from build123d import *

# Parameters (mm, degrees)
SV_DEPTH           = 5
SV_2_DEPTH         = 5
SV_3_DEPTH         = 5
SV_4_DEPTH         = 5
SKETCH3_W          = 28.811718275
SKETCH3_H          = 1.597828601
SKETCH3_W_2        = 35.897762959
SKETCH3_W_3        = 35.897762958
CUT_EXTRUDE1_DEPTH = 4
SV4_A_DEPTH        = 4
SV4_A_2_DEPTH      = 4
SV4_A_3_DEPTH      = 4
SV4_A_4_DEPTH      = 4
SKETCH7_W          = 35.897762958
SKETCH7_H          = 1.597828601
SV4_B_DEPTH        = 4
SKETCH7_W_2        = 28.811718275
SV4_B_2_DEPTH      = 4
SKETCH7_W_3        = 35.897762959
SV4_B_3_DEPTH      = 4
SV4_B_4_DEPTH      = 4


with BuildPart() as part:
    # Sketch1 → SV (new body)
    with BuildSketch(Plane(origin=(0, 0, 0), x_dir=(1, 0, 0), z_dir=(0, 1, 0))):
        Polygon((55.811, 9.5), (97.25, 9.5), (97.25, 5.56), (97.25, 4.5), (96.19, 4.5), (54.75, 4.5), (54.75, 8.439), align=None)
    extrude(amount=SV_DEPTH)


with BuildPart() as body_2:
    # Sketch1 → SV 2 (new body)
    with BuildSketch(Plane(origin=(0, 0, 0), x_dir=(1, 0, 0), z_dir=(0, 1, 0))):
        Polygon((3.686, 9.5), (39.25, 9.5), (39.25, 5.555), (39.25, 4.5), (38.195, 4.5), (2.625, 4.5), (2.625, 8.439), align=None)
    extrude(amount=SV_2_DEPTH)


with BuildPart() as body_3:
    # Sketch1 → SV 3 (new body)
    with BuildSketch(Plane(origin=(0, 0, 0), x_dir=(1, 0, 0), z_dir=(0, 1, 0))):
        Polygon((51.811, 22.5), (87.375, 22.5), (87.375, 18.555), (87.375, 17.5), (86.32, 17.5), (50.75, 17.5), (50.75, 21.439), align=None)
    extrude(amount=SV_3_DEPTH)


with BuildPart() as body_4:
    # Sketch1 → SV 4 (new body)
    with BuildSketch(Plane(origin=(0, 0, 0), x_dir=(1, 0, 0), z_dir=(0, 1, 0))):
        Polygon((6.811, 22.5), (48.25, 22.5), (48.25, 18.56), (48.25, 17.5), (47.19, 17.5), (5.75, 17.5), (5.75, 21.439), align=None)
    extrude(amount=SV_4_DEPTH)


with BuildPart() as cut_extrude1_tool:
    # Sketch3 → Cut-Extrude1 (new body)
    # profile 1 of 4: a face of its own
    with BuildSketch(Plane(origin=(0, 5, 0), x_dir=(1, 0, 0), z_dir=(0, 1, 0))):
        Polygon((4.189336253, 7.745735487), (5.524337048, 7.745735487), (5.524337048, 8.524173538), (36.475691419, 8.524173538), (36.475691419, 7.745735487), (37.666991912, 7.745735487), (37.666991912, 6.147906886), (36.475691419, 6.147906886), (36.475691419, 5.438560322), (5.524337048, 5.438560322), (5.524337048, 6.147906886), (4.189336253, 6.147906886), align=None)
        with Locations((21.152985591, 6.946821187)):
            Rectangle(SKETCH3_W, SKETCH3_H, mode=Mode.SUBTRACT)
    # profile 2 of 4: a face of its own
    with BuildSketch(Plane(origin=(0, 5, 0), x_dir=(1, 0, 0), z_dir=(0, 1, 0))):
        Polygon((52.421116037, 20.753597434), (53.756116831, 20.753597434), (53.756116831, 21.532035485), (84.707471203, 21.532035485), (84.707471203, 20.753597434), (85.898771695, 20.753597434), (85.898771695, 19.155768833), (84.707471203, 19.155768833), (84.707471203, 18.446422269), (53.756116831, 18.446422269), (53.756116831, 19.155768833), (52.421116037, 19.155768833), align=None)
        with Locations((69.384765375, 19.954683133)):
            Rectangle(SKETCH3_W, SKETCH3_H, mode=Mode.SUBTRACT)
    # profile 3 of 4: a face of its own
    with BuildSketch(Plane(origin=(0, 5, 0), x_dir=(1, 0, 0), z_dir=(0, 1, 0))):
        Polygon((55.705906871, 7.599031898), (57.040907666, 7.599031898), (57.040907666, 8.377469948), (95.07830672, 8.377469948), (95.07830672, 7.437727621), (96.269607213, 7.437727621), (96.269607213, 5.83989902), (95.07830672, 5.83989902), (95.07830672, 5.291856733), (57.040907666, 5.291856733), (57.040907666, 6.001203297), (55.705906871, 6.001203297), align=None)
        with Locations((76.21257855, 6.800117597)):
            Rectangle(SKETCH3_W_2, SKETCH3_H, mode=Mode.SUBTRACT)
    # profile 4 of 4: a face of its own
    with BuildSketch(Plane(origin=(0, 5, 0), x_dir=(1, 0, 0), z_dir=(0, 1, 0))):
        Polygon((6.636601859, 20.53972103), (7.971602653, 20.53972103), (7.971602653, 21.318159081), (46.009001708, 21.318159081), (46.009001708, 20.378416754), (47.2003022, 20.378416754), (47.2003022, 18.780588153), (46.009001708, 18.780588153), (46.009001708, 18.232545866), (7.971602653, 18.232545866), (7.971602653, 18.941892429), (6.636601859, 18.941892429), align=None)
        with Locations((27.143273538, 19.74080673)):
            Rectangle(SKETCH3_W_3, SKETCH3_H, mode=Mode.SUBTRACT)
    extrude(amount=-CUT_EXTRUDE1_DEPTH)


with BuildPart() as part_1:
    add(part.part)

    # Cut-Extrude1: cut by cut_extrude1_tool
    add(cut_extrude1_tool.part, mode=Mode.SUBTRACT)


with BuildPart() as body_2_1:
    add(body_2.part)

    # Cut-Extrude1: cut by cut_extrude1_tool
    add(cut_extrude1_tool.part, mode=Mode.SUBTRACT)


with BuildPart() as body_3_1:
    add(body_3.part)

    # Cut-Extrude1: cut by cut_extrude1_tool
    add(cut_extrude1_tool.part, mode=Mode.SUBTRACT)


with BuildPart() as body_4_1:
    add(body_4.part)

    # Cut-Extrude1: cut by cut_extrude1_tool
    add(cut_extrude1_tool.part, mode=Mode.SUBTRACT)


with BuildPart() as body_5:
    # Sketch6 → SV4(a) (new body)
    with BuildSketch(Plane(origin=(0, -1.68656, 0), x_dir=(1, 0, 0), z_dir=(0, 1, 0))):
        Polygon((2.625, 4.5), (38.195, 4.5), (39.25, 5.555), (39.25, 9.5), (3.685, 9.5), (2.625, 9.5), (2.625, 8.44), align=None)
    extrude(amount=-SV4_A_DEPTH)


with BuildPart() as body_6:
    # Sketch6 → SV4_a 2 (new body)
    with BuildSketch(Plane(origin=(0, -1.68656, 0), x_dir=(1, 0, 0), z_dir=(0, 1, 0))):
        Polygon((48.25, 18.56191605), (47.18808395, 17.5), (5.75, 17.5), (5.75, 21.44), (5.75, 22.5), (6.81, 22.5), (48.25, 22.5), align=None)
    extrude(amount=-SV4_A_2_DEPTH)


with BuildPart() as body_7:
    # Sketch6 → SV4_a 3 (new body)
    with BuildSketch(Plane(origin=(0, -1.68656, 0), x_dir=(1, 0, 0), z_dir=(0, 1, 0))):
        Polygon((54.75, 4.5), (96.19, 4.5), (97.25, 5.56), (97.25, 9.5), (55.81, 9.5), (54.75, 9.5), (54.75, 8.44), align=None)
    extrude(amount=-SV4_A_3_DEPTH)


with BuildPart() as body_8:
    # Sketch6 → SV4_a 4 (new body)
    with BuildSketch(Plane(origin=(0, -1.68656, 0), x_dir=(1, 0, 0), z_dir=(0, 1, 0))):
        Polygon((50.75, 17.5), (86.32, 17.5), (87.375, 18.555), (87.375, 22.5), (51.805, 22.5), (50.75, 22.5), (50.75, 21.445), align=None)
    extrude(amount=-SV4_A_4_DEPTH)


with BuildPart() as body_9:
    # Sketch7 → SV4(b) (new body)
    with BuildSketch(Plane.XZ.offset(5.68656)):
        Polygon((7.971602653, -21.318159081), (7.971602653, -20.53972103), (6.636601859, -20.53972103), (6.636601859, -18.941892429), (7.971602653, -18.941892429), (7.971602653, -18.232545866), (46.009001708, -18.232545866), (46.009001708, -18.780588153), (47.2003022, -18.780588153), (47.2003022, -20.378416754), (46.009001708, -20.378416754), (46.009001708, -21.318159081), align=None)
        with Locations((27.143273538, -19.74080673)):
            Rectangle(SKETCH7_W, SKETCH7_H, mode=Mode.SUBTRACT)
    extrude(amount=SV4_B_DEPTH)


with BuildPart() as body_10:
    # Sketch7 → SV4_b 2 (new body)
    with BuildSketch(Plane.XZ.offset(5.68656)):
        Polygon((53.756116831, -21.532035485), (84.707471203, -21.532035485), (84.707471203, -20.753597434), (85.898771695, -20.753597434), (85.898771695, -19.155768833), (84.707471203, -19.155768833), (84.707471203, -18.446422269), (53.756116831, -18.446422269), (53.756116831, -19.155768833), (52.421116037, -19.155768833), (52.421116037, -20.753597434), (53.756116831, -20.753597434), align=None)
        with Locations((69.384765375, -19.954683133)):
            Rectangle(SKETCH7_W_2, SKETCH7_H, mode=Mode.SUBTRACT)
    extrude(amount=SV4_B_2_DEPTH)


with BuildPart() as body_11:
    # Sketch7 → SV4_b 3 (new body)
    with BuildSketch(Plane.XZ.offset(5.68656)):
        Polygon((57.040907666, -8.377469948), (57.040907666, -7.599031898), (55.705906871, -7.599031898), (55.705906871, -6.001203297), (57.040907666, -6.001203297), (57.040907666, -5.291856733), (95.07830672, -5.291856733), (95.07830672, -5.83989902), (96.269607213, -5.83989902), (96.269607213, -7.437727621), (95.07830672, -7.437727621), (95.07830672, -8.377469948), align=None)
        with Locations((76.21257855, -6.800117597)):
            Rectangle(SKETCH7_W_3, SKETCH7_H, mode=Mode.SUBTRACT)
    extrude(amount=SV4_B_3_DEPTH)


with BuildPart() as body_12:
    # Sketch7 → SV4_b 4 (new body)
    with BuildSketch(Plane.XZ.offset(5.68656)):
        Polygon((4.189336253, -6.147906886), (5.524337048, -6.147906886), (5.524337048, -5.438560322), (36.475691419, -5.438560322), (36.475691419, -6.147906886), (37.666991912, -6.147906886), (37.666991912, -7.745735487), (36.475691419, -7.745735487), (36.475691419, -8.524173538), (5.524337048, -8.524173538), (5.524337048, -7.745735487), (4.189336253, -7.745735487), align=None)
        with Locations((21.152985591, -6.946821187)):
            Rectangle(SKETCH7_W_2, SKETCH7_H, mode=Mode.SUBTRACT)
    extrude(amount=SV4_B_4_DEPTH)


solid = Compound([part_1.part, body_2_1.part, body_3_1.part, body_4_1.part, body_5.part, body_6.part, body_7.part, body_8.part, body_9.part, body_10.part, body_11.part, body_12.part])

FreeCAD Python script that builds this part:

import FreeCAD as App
import Part
import Sketcher
from FreeCAD import Vector
Q = App.Units.Quantity


def add_polygon(sketch, points):
    """Adds a closed chain of lines whose ends are joined by coincident constraints."""
    first, n = sketch.GeometryCount, len(points)
    for a, b in zip(points, points[1:] + points[:1]):
        sketch.addGeometry(Part.LineSegment(App.Vector(*a, 0), App.Vector(*b, 0)), False)
    for i in range(n):
        sketch.addConstraint(Sketcher.Constraint("Coincident", first + i, 2, first + (i + 1) % n, 1))

doc = App.newDocument("Part")
body = doc.addObject("PartDesign::Body", "Body")

# Sketch on XZ plane
sketch1 = body.newObject("Sketcher::SketchObject", "Sketch")
sketch1.AttachmentSupport = (doc.getObject("XZ_Plane"), [""])
sketch1.MapMode = "FlatFace"
add_polygon(sketch1, [(97.2, -9.5), (55.8, -9.5), (54.8, -8.4), (54.8, -4.5), (97.2, -4.5)])  # lines 0-4
sketch1.addConstraint([
    Sketcher.Constraint("Horizontal", 0),
    Sketcher.Constraint("Vertical", 2),
    Sketcher.Constraint("Horizontal", 3),
    Sketcher.Constraint("Vertical", 4),
    Sketcher.Constraint("DistanceY", 4, 2, 4, 1, 5.0),
    Sketcher.Constraint("Angle", 1, Q("135 deg")),
    Sketcher.Constraint("DistanceX", 3, 1, 3, 2, 42.5),
    Sketcher.Constraint("DistanceY", 0, 2, -1, 1, 9.5),
    Sketcher.Constraint("DistanceX", 0, 2, 0, 1, 41.439),
    Sketcher.Constraint("DistanceX", -1, 1, 1, 2, 54.75),
])
pad1 = body.newObject("PartDesign::Pad", "Pad")
pad1.Profile = sketch1
pad1.Length = 5
pad1.Reversed = True
body2 = doc.addObject("PartDesign::Body", "Body001")

# Sketch on XZ plane
sketch2 = body2.newObject("Sketcher::SketchObject", "Sketch001")
sketch2.AttachmentSupport = (doc.getObject("XZ_Plane001"), [""])
sketch2.MapMode = "FlatFace"
add_polygon(sketch2, [(39.2, -9.5), (3.7, -9.5), (2.6, -8.4), (2.6, -4.5), (39.2, -4.5)])  # lines 0-4
sketch2.addConstraint([
    Sketcher.Constraint("Horizontal", 0),
    Sketcher.Constraint("Vertical", 2),
    Sketcher.Constraint("Horizontal", 3),
    Sketcher.Constraint("Vertical", 4),
    Sketcher.Constraint("DistanceY", 4, 2, 4, 1, 5.0),
    Sketcher.Constraint("Angle", 1, Q("135 deg")),
    Sketcher.Constraint("DistanceY", 0, 2, -1, 1, 9.5),
    Sketcher.Constraint("DistanceX", 0, 2, 0, 1, 35.564),
    Sketcher.Constraint("DistanceX", 3, 1, 3, 2, 36.625),
    Sketcher.Constraint("DistanceX", -1, 1, 3, 2, 39.25),
])
pad2 = body2.newObject("PartDesign::Pad", "Pad001")
pad2.Profile = sketch2
pad2.Length = 5
pad2.Reversed = True
body3 = doc.addObject("PartDesign::Body", "Body002")

# Sketch on XZ plane
sketch3 = body3.newObject("Sketcher::SketchObject", "Sketch002")
sketch3.AttachmentSupport = (doc.getObject("XZ_Plane002"), [""])
sketch3.MapMode = "FlatFace"
add_polygon(sketch3, [(87.4, -22.5), (51.8, -22.5), (50.8, -21.4), (50.8, -17.5), (87.4, -17.5)])  # lines 0-4
sketch3.addConstraint([
    Sketcher.Constraint("Horizontal", 0),
    Sketcher.Constraint("Vertical", 2),
    Sketcher.Constraint("Horizontal", 3),
    Sketcher.Constraint("Vertical", 4),
    Sketcher.Constraint("DistanceY", 4, 2, 4, 1, 5.0),
    Sketcher.Constraint("Angle", 1, Q("135 deg")),
    Sketcher.Constraint("DistanceY", 0, 2, -1, 1, 22.5),
    Sketcher.Constraint("DistanceX", 0, 2, 0, 1, 35.564),
    Sketcher.Constraint("DistanceX", 3, 1, 3, 2, 36.625),
    Sketcher.Constraint("DistanceX", -1, 1, 1, 2, 50.75),
])
pad3 = body3.newObject("PartDesign::Pad", "Pad002")
pad3.Profile = sketch3
pad3.Length = 5
pad3.Reversed = True
body4 = doc.addObject("PartDesign::Body", "Body003")

# Sketch on XZ plane
sketch4 = body4.newObject("Sketcher::SketchObject", "Sketch003")
sketch4.AttachmentSupport = (doc.getObject("XZ_Plane003"), [""])
sketch4.MapMode = "FlatFace"
add_polygon(sketch4, [(48.2, -22.5), (6.8, -22.5), (5.8, -21.4), (5.8, -17.5), (48.2, -17.5)])  # lines 0-4
sketch4.addConstraint([
    Sketcher.Constraint("Horizontal", 0),
    Sketcher.Constraint("Vertical", 2),
    Sketcher.Constraint("Horizontal", 3),
    Sketcher.Constraint("Vertical", 4),
    Sketcher.Constraint("DistanceY", 4, 2, 4, 1, 5.0),
    Sketcher.Constraint("Angle", 1, Q("135 deg")),
    Sketcher.Constraint("DistanceX", 3, 1, 3, 2, 42.5),
    Sketcher.Constraint("DistanceY", 0, 2, -1, 1, 22.5),
    Sketcher.Constraint("DistanceX", 0, 2, 0, 1, 41.439),
    Sketcher.Constraint("DistanceX", -1, 1, 1, 2, 5.75),
])
pad4 = body4.newObject("PartDesign::Pad", "Pad003")
pad4.Profile = sketch4
pad4.Length = 5
pad4.Reversed = True
body5 = doc.addObject("PartDesign::Body", "Body004")
body5.AllowCompound = True

# Sketch on XZ plane
sketch5 = body5.newObject("Sketcher::SketchObject", "Sketch004")
sketch5.AttachmentSupport = (doc.getObject("XZ_Plane004"), [""])
sketch5.MapMode = "FlatFace"
sketch5.AttachmentOffset = App.Placement(Vector(0, 0, -5), App.Rotation())
add_polygon(sketch5, [(5.5, -7.7), (4.2, -7.7), (4.2, -6.1), (5.5, -6.1), (5.5, -5.4), (36.5, -5.4), (36.5, -6.1), (37.7, -6.1), (37.7, -7.7), (36.5, -7.7), (36.5, -8.5), (5.5, -8.5)])  # lines 0-11
add_polygon(sketch5, [(6.7, -6.1), (6.7, -7.7), (35.6, -7.7), (35.6, -6.1)])  # lines 12-15
add_polygon(sketch5, [(53.8, -20.8), (52.4, -20.8), (52.4, -19.2), (53.8, -19.2), (53.8, -18.4), (84.7, -18.4), (84.7, -19.2), (85.9, -19.2), (85.9, -20.8), (84.7, -20.8), (84.7, -21.5), (53.8, -21.5)])  # lines 16-27
add_polygon(sketch5, [(55, -19.2), (55, -20.8), (83.8, -20.8), (83.8, -19.2)])  # lines 28-31
add_polygon(sketch5, [(57, -7.6), (55.7, -7.6), (55.7, -6), (57, -6), (57, -5.3), (95.1, -5.3), (95.1, -5.8), (96.3, -5.8), (96.3, -7.4), (95.1, -7.4), (95.1, -8.4), (57, -8.4)])  # lines 32-43
add_polygon(sketch5, [(58.3, -6), (58.3, -7.6), (94.2, -7.6), (94.2, -6)])  # lines 44-47
add_polygon(sketch5, [(8, -20.5), (6.6, -20.5), (6.6, -18.9), (8, -18.9), (8, -18.2), (46, -18.2), (46, -18.8), (47.2, -18.8), (47.2, -20.4), (46, -20.4), (46, -21.3), (8, -21.3)])  # lines 48-59
add_polygon(sketch5, [(9.2, -18.9), (9.2, -20.5), (45.1, -20.5), (45.1, -18.9)])  # lines 60-63
sketch5.addConstraint([
    Sketcher.Constraint("Horizontal", 0),
    Sketcher.Constraint("Vertical", 1),
    Sketcher.Constraint("Horizontal", 2),
    Sketcher.Constraint("Vertical", 3),
    Sketcher.Constraint("Horizontal", 4),
    Sketcher.Constraint("Vertical", 5),
    Sketcher.Constraint("Horizontal", 6),
    Sketcher.Constraint("Vertical", 7),
    Sketcher.Constraint("Horizontal", 8),
    Sketcher.Constraint("Vertical", 9),
    Sketcher.Constraint("Horizontal", 10),
    Sketcher.Constraint("Vertical", 11),
    Sketcher.Constraint("Vertical", 12),
    Sketcher.Constraint("Horizontal", 13),
    Sketcher.Constraint("Vertical", 14),
    Sketcher.Constraint("Horizontal", 15),
    Sketcher.Constraint("Horizontal", 16),
    Sketcher.Constraint("Vertical", 17),
    Sketcher.Constraint("Horizontal", 18),
    Sketcher.Constraint("Vertical", 19),
    Sketcher.Constraint("Horizontal", 20),
    Sketcher.Constraint("Vertical", 21),
    Sketcher.Constraint("Horizontal", 22),
    Sketcher.Constraint("Vertical", 23),
    Sketcher.Constraint("Horizontal", 24),
    Sketcher.Constraint("Vertical", 25),
    Sketcher.Constraint("Horizontal", 26),
    Sketcher.Constraint("Vertical", 27),
    Sketcher.Constraint("Vertical", 28),
    Sketcher.Constraint("Horizontal", 29),
    Sketcher.Constraint("Vertical", 30),
    Sketcher.Constraint("Horizontal", 31),
    Sketcher.Constraint("Horizontal", 32),
    Sketcher.Constraint("Vertical", 33),
    Sketcher.Constraint("Horizontal", 34),
    Sketcher.Constraint("Vertical", 35),
    Sketcher.Constraint("Horizontal", 36),
    Sketcher.Constraint("Vertical", 37),
    Sketcher.Constraint("Horizontal", 38),
    Sketcher.Constraint("Vertical", 39),
    Sketcher.Constraint("Horizontal", 40),
    Sketcher.Constraint("Vertical", 41),
    Sketcher.Constraint("Horizontal", 42),
    Sketcher.Constraint("Vertical", 43),
    Sketcher.Constraint("Vertical", 44),
    Sketcher.Constraint("Horizontal", 45),
    Sketcher.Constraint("Vertical", 46),
    Sketcher.Constraint("Horizontal", 47),
    Sketcher.Constraint("Horizontal", 48),
    Sketcher.Constraint("Vertical", 49),
    Sketcher.Constraint("Horizontal", 50),
    Sketcher.Constraint("Vertical", 51),
    Sketcher.Constraint("Horizontal", 52),
    Sketcher.Constraint("Vertical", 53),
    Sketcher.Constraint("Horizontal", 54),
    Sketcher.Constraint("Vertical", 55),
    Sketcher.Constraint("Horizontal", 56),
    Sketcher.Constraint("Vertical", 57),
    Sketcher.Constraint("Horizontal", 58),
    Sketcher.Constraint("Vertical", 59),
    Sketcher.Constraint("Vertical", 60),
    Sketcher.Constraint("Horizontal", 61),
    Sketcher.Constraint("Vertical", 62),
    Sketcher.Constraint("Horizontal", 63),
    Sketcher.Constraint("Horizontal", 2, 2, 5, 2),
    Sketcher.Constraint("Horizontal", 0, 2, 7, 2),
    Sketcher.Constraint("Horizontal", 11, 2, 12, 2),
    Sketcher.Constraint("Horizontal", 6, 2, 14, 2),
    Sketcher.Constraint("Horizontal", 18, 2, 21, 2),
    Sketcher.Constraint("Horizontal", 16, 2, 23, 2),
    Sketcher.Constraint("Horizontal", 27, 2, 28, 2),
    Sketcher.Constraint("Horizontal", 22, 2, 30, 2),
    Sketcher.Constraint("Horizontal", 43, 2, 44, 2),
    Sketcher.Constraint("Horizontal", 34, 2, 46, 2),
    Sketcher.Constraint("Horizontal", 59, 2, 60, 2),
    Sketcher.Constraint("Horizontal", 50, 2, 62, 2),
    Sketcher.Constraint("Vertical", 5, 2, 8, 2),
    Sketcher.Constraint("Vertical", 3, 2, 10, 2),
    Sketcher.Constraint("Vertical", 21, 2, 24, 2),
    Sketcher.Constraint("Vertical", 19, 2, 26, 2),
    Sketcher.Constraint("Vertical", 37, 2, 40, 2),
    Sketcher.Constraint("Vertical", 35, 2, 42, 2),
    Sketcher.Constraint("Vertical", 53, 2, 56, 2),
    Sketcher.Constraint("Vertical", 51, 2, 58, 2),
    Sketcher.Constraint("Equal", 2, 16),
    Sketcher.Constraint("Equal", 10, 20),
    Sketcher.Constraint("Equal", 8, 22),
    Sketcher.Constraint("Equal", 15, 29),
    Sketcher.Constraint("Equal", 18, 32),
    Sketcher.Constraint("Equal", 24, 38),
    Sketcher.Constraint("Equal", 34, 48),
    Sketcher.Constraint("Equal", 42, 52),
    Sketcher.Constraint("Equal", 40, 54),
    Sketcher.Constraint("Equal", 47, 61),
    Sketcher.Constraint("Equal", 14, 17),
    Sketcher.Constraint("Equal", 5, 19),
    Sketcher.Constraint("Equal", 11, 25),
    Sketcher.Constraint("Equal", 30, 33),
    Sketcher.Constraint("Equal", 21, 35),
    Sketcher.Constraint("Equal", 33, 39),
    Sketcher.Constraint("Equal", 27, 43),
    Sketcher.Constraint("Equal", 46, 49),
    Sketcher.Constraint("Equal", 35, 51),
    Sketcher.Constraint("Equal", 37, 53),
    Sketcher.Constraint("Equal", 49, 55),
    Sketcher.Constraint("Equal", 41, 57),
    Sketcher.Constraint("DistanceX", 0, 2, 0, 1, 1.335001),
    Sketcher.Constraint("DistanceX", 6, 1, 6, 2, 1.1913),
    Sketcher.Constraint("DistanceX", 36, 1, 36, 2, 38.037399),
    Sketcher.Constraint("DistanceX", -1, 1, 52, 2, 46.009002),
    Sketcher.Constraint("DistanceX", 13, 1, 13, 2, 28.811718),
    Sketcher.Constraint("DistanceY", 1, 1, 1, 2, 1.597829),
    Sketcher.Constraint("DistanceY", 9, 2, 9, 1, 0.778438),
    Sketcher.Constraint("DistanceY", 37, 2, -1, 1, 5.839899),
    Sketcher.Constraint("DistanceX", 4, 1, 4, 2, 30.951354),
    Sketcher.Constraint("DistanceX", 45, 1, 45, 2, 35.897763),
    Sketcher.Constraint("DistanceY", 3, 1, 3, 2, 0.709347),
    Sketcher.Constraint("DistanceY", 37, 2, 37, 1, 0.548042),
    Sketcher.Constraint("DistanceY", 3, 2, -1, 1, 5.43856),
    Sketcher.Constraint("DistanceX", -1, 1, 4, 2, 36.475691),
    Sketcher.Constraint("DistanceY", 17, 2, -1, 1, 19.155769),
    Sketcher.Constraint("DistanceX", -1, 1, 20, 2, 84.707471),
    Sketcher.Constraint("DistanceX", -1, 1, 45, 2, 94.16146),
    Sketcher.Constraint("DistanceY", 48, 2, -1, 1, 20.539721),
    Sketcher.Constraint("DistanceX", -1, 1, 12, 2, 6.747126),
    Sketcher.Constraint("DistanceX", -1, 1, 28, 2, 54.978906),
    Sketcher.Constraint("DistanceX", -1, 1, 32, 2, 55.705907),
    Sketcher.Constraint("DistanceX", -1, 1, 60, 2, 9.194392),
])
pad5 = body5.newObject("PartDesign::Pad", "Pad004")
pad5.Profile = sketch5
pad5.Length = 4
doc.recompute()

body6 = doc.addObject("PartDesign::Body", "Body005")
body6.BaseFeature = body5
boolean = body.newObject("PartDesign::Boolean", "Boolean")
boolean.Type = "Cut"
boolean.addObjects([body6])
doc.recompute()

body7 = doc.addObject("PartDesign::Body", "Body006")
body7.BaseFeature = body5
boolean2 = body2.newObject("PartDesign::Boolean", "Boolean001")
boolean2.Type = "Cut"
boolean2.addObjects([body7])
doc.recompute()

body8 = doc.addObject("PartDesign::Body", "Body007")
body8.BaseFeature = body5
boolean3 = body3.newObject("PartDesign::Boolean", "Boolean002")
boolean3.Type = "Cut"
boolean3.addObjects([body8])
doc.recompute()

boolean4 = body4.newObject("PartDesign::Boolean", "Boolean003")
boolean4.Type = "Cut"
boolean4.addObjects([body5])
body9 = doc.addObject("PartDesign::Body", "Body008")

# Sketch on XZ plane
sketch6 = body9.newObject("Sketcher::SketchObject", "Sketch005")
sketch6.AttachmentSupport = (doc.getObject("XZ_Plane008"), [""])
sketch6.MapMode = "FlatFace"
sketch6.AttachmentOffset = App.Placement(Vector(0, 0, 1.68656), App.Rotation())
add_polygon(sketch6, [(2.6, -4.5), (38.2, -4.5), (39.2, -5.6), (39.2, -9.5), (2.6, -9.5)])  # lines 0-4
sketch6.addConstraint([
    Sketcher.Constraint("Horizontal", 0),
    Sketcher.Constraint("Vertical", 2),
    Sketcher.Constraint("Horizontal", 3),
    Sketcher.Constraint("Vertical", 4),
    Sketcher.Constraint("DistanceY", 4, 1, 4, 2, 5.0),
    Sketcher.Constraint("Angle", 1, Q("-45 deg")),
    Sketcher.Constraint("DistanceX", 0, 1, 0, 2, 35.57),
    Sketcher.Constraint("DistanceY", 0, 2, -1, 1, 4.5),
    Sketcher.Constraint("DistanceX", 3, 2, 3, 1, 36.625),
    Sketcher.Constraint("DistanceX", -1, 1, 1, 2, 39.25),
])
pad6 = body9.newObject("PartDesign::Pad", "Pad005")
pad6.Profile = sketch6
pad6.Length = 4
body10 = doc.addObject("PartDesign::Body", "Body009")

# Sketch on XZ plane
sketch7 = body10.newObject("Sketcher::SketchObject", "Sketch006")
sketch7.AttachmentSupport = (doc.getObject("XZ_Plane009"), [""])
sketch7.MapMode = "FlatFace"
sketch7.AttachmentOffset = App.Placement(Vector(0, 0, 1.68656), App.Rotation())
add_polygon(sketch7, [(47.2, -17.5), (48.2, -18.6), (48.2, -22.5), (5.8, -22.5), (5.8, -17.5)])  # lines 0-4
sketch7.addConstraint([
    Sketcher.Constraint("Vertical", 1),
    Sketcher.Constraint("Horizontal", 2),
    Sketcher.Constraint("Vertical", 3),
    Sketcher.Constraint("Horizontal", 4),
    Sketcher.Constraint("DistanceY", 3, 1, 3, 2, 5.0),
    Sketcher.Constraint("Angle", 0, Q("-45 deg")),
    Sketcher.Constraint("DistanceX", 2, 2, 2, 1, 42.5),
    Sketcher.Constraint("DistanceY", 1, 2, -1, 1, 22.5),
    Sketcher.Constraint("DistanceX", -1, 1, 0, 2, 48.25),
    Sketcher.Constraint("DistanceX", 4, 1, 4, 2, 41.438084),
])
pad7 = body10.newObject("PartDesign::Pad", "Pad006")
pad7.Profile = sketch7
pad7.Length = 4
body11 = doc.addObject("PartDesign::Body", "Body010")

# Sketch on XZ plane
sketch8 = body11.newObject("Sketcher::SketchObject", "Sketch007")
sketch8.AttachmentSupport = (doc.getObject("XZ_Plane010"), [""])
sketch8.MapMode = "FlatFace"
sketch8.AttachmentOffset = App.Placement(Vector(0, 0, 1.68656), App.Rotation())
add_polygon(sketch8, [(54.8, -4.5), (96.2, -4.5), (97.2, -5.6), (97.2, -9.5), (54.8, -9.5)])  # lines 0-4
sketch8.addConstraint([
    Sketcher.Constraint("Horizontal", 0),
    Sketcher.Constraint("Vertical", 2),
    Sketcher.Constraint("Horizontal", 3),
    Sketcher.Constraint("Vertical", 4),
    Sketcher.Constraint("DistanceY", 4, 1, 4, 2, 5.0),
    Sketcher.Constraint("Angle", 1, Q("-45 deg")),
    Sketcher.Constraint("DistanceX", 3, 2, 3, 1, 42.5),
    Sketcher.Constraint("DistanceX", 0, 1, 0, 2, 41.44),
    Sketcher.Constraint("DistanceY", 0, 2, -1, 1, 4.5),
    Sketcher.Constraint("DistanceX", -1, 1, 0, 2, 96.19),
])
pad8 = body11.newObject("PartDesign::Pad", "Pad007")
pad8.Profile = sketch8
pad8.Length = 4
body12 = doc.addObject("PartDesign::Body", "Body011")

# Sketch on XZ plane
sketch9 = body12.newObject("Sketcher::SketchObject", "Sketch008")
sketch9.AttachmentSupport = (doc.getObject("XZ_Plane011"), [""])
sketch9.MapMode = "FlatFace"
sketch9.AttachmentOffset = App.Placement(Vector(0, 0, 1.68656), App.Rotation())
add_polygon(sketch9, [(50.8, -17.5), (86.3, -17.5), (87.4, -18.6), (87.4, -22.5), (50.8, -22.5)])  # lines 0-4
sketch9.addConstraint([
    Sketcher.Constraint("Horizontal", 0),
    Sketcher.Constraint("Vertical", 2),
    Sketcher.Constraint("Horizontal", 3),
    Sketcher.Constraint("Vertical", 4),
    Sketcher.Constraint("DistanceY", 4, 1, 4, 2, 5.0),
    Sketcher.Constraint("Angle", 1, Q("-45 deg")),
    Sketcher.Constraint("DistanceX", 0, 1, 0, 2, 35.57),
    Sketcher.Constraint("DistanceY", 0, 2, -1, 1, 17.5),
    Sketcher.Constraint("DistanceX", 3, 2, 3, 1, 36.625),
    Sketcher.Constraint("DistanceX", -1, 1, 0, 2, 86.32),
])
pad9 = body12.newObject("PartDesign::Pad", "Pad008")
pad9.Profile = sketch9
pad9.Length = 4
body13 = doc.addObject("PartDesign::Body", "Body012")

# Sketch on XZ plane
sketch10 = body13.newObject("Sketcher::SketchObject", "Sketch009")
sketch10.AttachmentSupport = (doc.getObject("XZ_Plane012"), [""])
sketch10.MapMode = "FlatFace"
sketch10.AttachmentOffset = App.Placement(Vector(0, 0, 5.68656), App.Rotation())
add_polygon(sketch10, [(8, -20.5), (8, -21.3), (46, -21.3), (46, -20.4), (47.2, -20.4), (47.2, -18.8), (46, -18.8), (46, -18.2), (8, -18.2), (8, -18.9), (6.6, -18.9), (6.6, -20.5)])  # lines 0-11
add_polygon(sketch10, [(9.2, -20.5), (9.2, -18.9), (45.1, -18.9), (45.1, -20.5)])  # lines 12-15
sketch10.addConstraint([
    Sketcher.Constraint("Vertical", 0),
    Sketcher.Constraint("Horizontal", 1),
    Sketcher.Constraint("Vertical", 2),
    Sketcher.Constraint("Horizontal", 3),
    Sketcher.Constraint("Vertical", 4),
    Sketcher.Constraint("Horizontal", 5),
    Sketcher.Constraint("Vertical", 6),
    Sketcher.Constraint("Horizontal", 7),
    Sketcher.Constraint("Vertical", 8),
    Sketcher.Constraint("Horizontal", 9),
    Sketcher.Constraint("Vertical", 10),
    Sketcher.Constraint("Horizontal", 11),
    Sketcher.Constraint("Vertical", 12),
    Sketcher.Constraint("Horizontal", 13),
    Sketcher.Constraint("Vertical", 14),
    Sketcher.Constraint("Horizontal", 15),
    Sketcher.Constraint("Horizontal", 9, 2, 12, 2),
    Sketcher.Constraint("Horizontal", 11, 2, 14, 2),
    Sketcher.Constraint("Vertical", 2, 2, 5, 2),
    Sketcher.Constraint("Vertical", 0, 2, 7, 2),
    Sketcher.Constraint("Equal", 4, 10),
    Sketcher.Constraint("DistanceX", 9, 2, 9, 1, 1.335001),
    Sketcher.Constraint("DistanceX", 1, 1, 1, 2, 38.037399),
    Sketcher.Constraint("DistanceX", 3, 1, 3, 2, 1.1913),
    Sketcher.Constraint("DistanceX", -1, 1, 1, 2, 46.009002),
    Sketcher.Constraint("DistanceY", 0, 2, 0, 1, 0.778438),
    Sketcher.Constraint("DistanceY", 4, 1, 4, 2, 1.597829),
    Sketcher.Constraint("DistanceX", 13, 1, 13, 2, 35.897763),
    Sketcher.Constraint("DistanceY", 2, 1, 2, 2, 0.939742),
    Sketcher.Constraint("DistanceY", 6, 1, 6, 2, 0.548042),
    Sketcher.Constraint("DistanceY", 0, 2, -1, 1, 21.318159),
    Sketcher.Constraint("DistanceX", 8, 2, 12, 2, 1.222789),
])
pad10 = body13.newObject("PartDesign::Pad", "Pad009")
pad10.Profile = sketch10
pad10.Length = 4
body14 = doc.addObject("PartDesign::Body", "Body013")

# Sketch on XZ plane
sketch11 = body14.newObject("Sketcher::SketchObject", "Sketch010")
sketch11.AttachmentSupport = (doc.getObject("XZ_Plane013"), [""])
sketch11.MapMode = "FlatFace"
sketch11.AttachmentOffset = App.Placement(Vector(0, 0, 5.68656), App.Rotation())
add_polygon(sketch11, [(53.8, -21.5), (84.7, -21.5), (84.7, -20.8), (85.9, -20.8), (85.9, -19.2), (84.7, -19.2), (84.7, -18.4), (53.8, -18.4), (53.8, -19.2), (52.4, -19.2), (52.4, -20.8), (53.8, -20.8)])  # lines 0-11
add_polygon(sketch11, [(83.8, -20.8), (55, -20.8), (55, -19.2), (83.8, -19.2)])  # lines 12-15
sketch11.addConstraint([
    Sketcher.Constraint("Horizontal", 0),
    Sketcher.Constraint("Vertical", 1),
    Sketcher.Constraint("Horizontal", 2),
    Sketcher.Constraint("Vertical", 3),
    Sketcher.Constraint("Horizontal", 4),
    Sketcher.Constraint("Vertical", 5),
    Sketcher.Constraint("Horizontal", 6),
    Sketcher.Constraint("Vertical", 7),
    Sketcher.Constraint("Horizontal", 8),
    Sketcher.Constraint("Vertical", 9),
    Sketcher.Constraint("Horizontal", 10),
    Sketcher.Constraint("Vertical", 11),
    Sketcher.Constraint("Horizontal", 12),
    Sketcher.Constraint("Vertical", 13),
    Sketcher.Constraint("Horizontal", 14),
    Sketcher.Constraint("Vertical", 15),
    Sketcher.Constraint("Horizontal", 4, 2, 7, 2),
    Sketcher.Constraint("Horizontal", 2, 2, 9, 2),
    Sketcher.Constraint("Horizontal", 10, 2, 12, 2),
    Sketcher.Constraint("Horizontal", 8, 2, 13, 2),
    Sketcher.Constraint("Vertical", 1, 2, 4, 2),
    Sketcher.Constraint("Vertical", 7, 2, 10, 2),
    Sketcher.Constraint("DistanceX", 8, 2, 8, 1, 1.335001),
    Sketcher.Constraint("DistanceX", 2, 1, 2, 2, 1.1913),
    Sketcher.Constraint("DistanceX", 12, 2, 12, 1, 28.811718),
    Sketcher.Constraint("DistanceY", 1, 1, 1, 2, 0.778438),
    Sketcher.Constraint("DistanceY", 3, 1, 3, 2, 1.597829),
    Sketcher.Constraint("DistanceX", 0, 1, 0, 2, 30.951354),
    Sketcher.Constraint("DistanceY", 5, 1, 5, 2, 0.709347),
    Sketcher.Constraint("DistanceX", -1, 1, 0, 2, 84.707471),
    Sketcher.Constraint("DistanceY", 3, 2, -1, 1, 19.155769),
    Sketcher.Constraint("DistanceX", 10, 2, 12, 2, 1.222789),
])
pad11 = body14.newObject("PartDesign::Pad", "Pad010")
pad11.Profile = sketch11
pad11.Length = 4
body15 = doc.addObject("PartDesign::Body", "Body014")

# Sketch on XZ plane
sketch12 = body15.newObject("Sketcher::SketchObject", "Sketch011")
sketch12.AttachmentSupport = (doc.getObject("XZ_Plane014"), [""])
sketch12.MapMode = "FlatFace"
sketch12.AttachmentOffset = App.Placement(Vector(0, 0, 5.68656), App.Rotation())
add_polygon(sketch12, [(57, -7.6), (57, -8.4), (95.1, -8.4), (95.1, -7.4), (96.3, -7.4), (96.3, -5.8), (95.1, -5.8), (95.1, -5.3), (57, -5.3), (57, -6), (55.7, -6), (55.7, -7.6)])  # lines 0-11
add_polygon(sketch12, [(58.3, -7.6), (58.3, -6), (94.2, -6), (94.2, -7.6)])  # lines 12-15
sketch12.addConstraint([
    Sketcher.Constraint("Vertical", 0),
    Sketcher.Constraint("Horizontal", 1),
    Sketcher.Constraint("Vertical", 2),
    Sketcher.Constraint("Horizontal", 3),
    Sketcher.Constraint("Vertical", 4),
    Sketcher.Constraint("Horizontal", 5),
    Sketcher.Constraint("Vertical", 6),
    Sketcher.Constraint("Horizontal", 7),
    Sketcher.Constraint("Vertical", 8),
    Sketcher.Constraint("Horizontal", 9),
    Sketcher.Constraint("Vertical", 10),
    Sketcher.Constraint("Horizontal", 11),
    Sketcher.Constraint("Vertical", 12),
    Sketcher.Constraint("Horizontal", 13),
    Sketcher.Constraint("Vertical", 14),
    Sketcher.Constraint("Horizontal", 15),
    Sketcher.Constraint("Horizontal", 9, 2, 12, 2),
    Sketcher.Constraint("Horizontal", 11, 2, 14, 2),
    Sketcher.Constraint("Vertical", 2, 2, 5, 2),
    Sketcher.Constraint("Vertical", 0, 2, 7, 2),
    Sketcher.Constraint("Equal", 4, 10),
    Sketcher.Constraint("DistanceX", 9, 2, 9, 1, 1.335001),
    Sketcher.Constraint("DistanceX", 1, 1, 1, 2, 38.037399),
    Sketcher.Constraint("DistanceX", 3, 1, 3, 2, 1.1913),
    Sketcher.Constraint("DistanceY", 0, 2, 0, 1, 0.778438),
    Sketcher.Constraint("DistanceY", 4, 1, 4, 2, 1.597829),
    Sketcher.Constraint("DistanceY", 4, 2, -1, 1, 5.839899),
    Sketcher.Constraint("DistanceX", 13, 1, 13, 2, 35.897763),
    Sketcher.Constraint("DistanceY", 2, 1, 2, 2, 0.939742),
    Sketcher.Constraint("DistanceY", 6, 1, 6, 2, 0.548042),
    Sketcher.Constraint("DistanceX", -1, 1, 13, 2, 94.16146),
    Sketcher.Constraint("DistanceX", 8, 2, 12, 2, 1.222789),
])
pad12 = body15.newObject("PartDesign::Pad", "Pad011")
pad12.Profile = sketch12
pad12.Length = 4
body16 = doc.addObject("PartDesign::Body", "Body015")

# Sketch on XZ plane
sketch13 = body16.newObject("Sketcher::SketchObject", "Sketch012")
sketch13.AttachmentSupport = (doc.getObject("XZ_Plane015"), [""])
sketch13.MapMode = "FlatFace"
sketch13.AttachmentOffset = App.Placement(Vector(0, 0, 5.68656), App.Rotation())
add_polygon(sketch13, [(5.5, -6.1), (4.2, -6.1), (4.2, -7.7), (5.5, -7.7), (5.5, -8.5), (36.5, -8.5), (36.5, -7.7), (37.7, -7.7), (37.7, -6.1), (36.5, -6.1), (36.5, -5.4), (5.5, -5.4)])  # lines 0-11
add_polygon(sketch13, [(6.7, -7.7), (6.7, -6.1), (35.6, -6.1), (35.6, -7.7)])  # lines 12-15
sketch13.addConstraint([
    Sketcher.Constraint("Horizontal", 0),
    Sketcher.Constraint("Vertical", 1),
    Sketcher.Constraint("Horizontal", 2),
    Sketcher.Constraint("Vertical", 3),
    Sketcher.Constraint("Horizontal", 4),
    Sketcher.Constraint("Vertical", 5),
    Sketcher.Constraint("Horizontal", 6),
    Sketcher.Constraint("Vertical", 7),
    Sketcher.Constraint("Horizontal", 8),
    Sketcher.Constraint("Vertical", 9),
    Sketcher.Constraint("Horizontal", 10),
    Sketcher.Constraint("Vertical", 11),
    Sketcher.Constraint("Vertical", 12),
    Sketcher.Constraint("Horizontal", 13),
    Sketcher.Constraint("Vertical", 14),
    Sketcher.Constraint("Horizontal", 15),
    Sketcher.Constraint("Horizontal", 2, 2, 5, 2),
    Sketcher.Constraint("Horizontal", 0, 2, 7, 2),
    Sketcher.Constraint("Horizontal", 11, 2, 12, 2),
    Sketcher.Constraint("Horizontal", 6, 2, 14, 2),
    Sketcher.Constraint("Vertical", 5, 2, 8, 2),
    Sketcher.Constraint("Vertical", 3, 2, 10, 2),
    Sketcher.Constraint("DistanceX", 0, 2, 0, 1, 1.335001),
    Sketcher.Constraint("DistanceX", 6, 1, 6, 2, 1.1913),
    Sketcher.Constraint("DistanceX", 13, 1, 13, 2, 28.811718),
    Sketcher.Constraint("DistanceY", 1, 2, 1, 1, 1.597829),
    Sketcher.Constraint("DistanceY", 3, 2, 3, 1, 0.778438),
    Sketcher.Constraint("DistanceX", 4, 1, 4, 2, 30.951354),
    Sketcher.Constraint("DistanceY", 9, 1, 9, 2, 0.709347),
    Sketcher.Constraint("DistanceX", -1, 1, 4, 2, 36.475691),
    Sketcher.Constraint("DistanceY", 9, 2, -1, 1, 5.43856),
    Sketcher.Constraint("DistanceX", 11, 2, 12, 2, 1.222789),
])
pad13 = body16.newObject("PartDesign::Pad", "Pad012")
pad13.Profile = sketch13
pad13.Length = 4

doc.recompute()
